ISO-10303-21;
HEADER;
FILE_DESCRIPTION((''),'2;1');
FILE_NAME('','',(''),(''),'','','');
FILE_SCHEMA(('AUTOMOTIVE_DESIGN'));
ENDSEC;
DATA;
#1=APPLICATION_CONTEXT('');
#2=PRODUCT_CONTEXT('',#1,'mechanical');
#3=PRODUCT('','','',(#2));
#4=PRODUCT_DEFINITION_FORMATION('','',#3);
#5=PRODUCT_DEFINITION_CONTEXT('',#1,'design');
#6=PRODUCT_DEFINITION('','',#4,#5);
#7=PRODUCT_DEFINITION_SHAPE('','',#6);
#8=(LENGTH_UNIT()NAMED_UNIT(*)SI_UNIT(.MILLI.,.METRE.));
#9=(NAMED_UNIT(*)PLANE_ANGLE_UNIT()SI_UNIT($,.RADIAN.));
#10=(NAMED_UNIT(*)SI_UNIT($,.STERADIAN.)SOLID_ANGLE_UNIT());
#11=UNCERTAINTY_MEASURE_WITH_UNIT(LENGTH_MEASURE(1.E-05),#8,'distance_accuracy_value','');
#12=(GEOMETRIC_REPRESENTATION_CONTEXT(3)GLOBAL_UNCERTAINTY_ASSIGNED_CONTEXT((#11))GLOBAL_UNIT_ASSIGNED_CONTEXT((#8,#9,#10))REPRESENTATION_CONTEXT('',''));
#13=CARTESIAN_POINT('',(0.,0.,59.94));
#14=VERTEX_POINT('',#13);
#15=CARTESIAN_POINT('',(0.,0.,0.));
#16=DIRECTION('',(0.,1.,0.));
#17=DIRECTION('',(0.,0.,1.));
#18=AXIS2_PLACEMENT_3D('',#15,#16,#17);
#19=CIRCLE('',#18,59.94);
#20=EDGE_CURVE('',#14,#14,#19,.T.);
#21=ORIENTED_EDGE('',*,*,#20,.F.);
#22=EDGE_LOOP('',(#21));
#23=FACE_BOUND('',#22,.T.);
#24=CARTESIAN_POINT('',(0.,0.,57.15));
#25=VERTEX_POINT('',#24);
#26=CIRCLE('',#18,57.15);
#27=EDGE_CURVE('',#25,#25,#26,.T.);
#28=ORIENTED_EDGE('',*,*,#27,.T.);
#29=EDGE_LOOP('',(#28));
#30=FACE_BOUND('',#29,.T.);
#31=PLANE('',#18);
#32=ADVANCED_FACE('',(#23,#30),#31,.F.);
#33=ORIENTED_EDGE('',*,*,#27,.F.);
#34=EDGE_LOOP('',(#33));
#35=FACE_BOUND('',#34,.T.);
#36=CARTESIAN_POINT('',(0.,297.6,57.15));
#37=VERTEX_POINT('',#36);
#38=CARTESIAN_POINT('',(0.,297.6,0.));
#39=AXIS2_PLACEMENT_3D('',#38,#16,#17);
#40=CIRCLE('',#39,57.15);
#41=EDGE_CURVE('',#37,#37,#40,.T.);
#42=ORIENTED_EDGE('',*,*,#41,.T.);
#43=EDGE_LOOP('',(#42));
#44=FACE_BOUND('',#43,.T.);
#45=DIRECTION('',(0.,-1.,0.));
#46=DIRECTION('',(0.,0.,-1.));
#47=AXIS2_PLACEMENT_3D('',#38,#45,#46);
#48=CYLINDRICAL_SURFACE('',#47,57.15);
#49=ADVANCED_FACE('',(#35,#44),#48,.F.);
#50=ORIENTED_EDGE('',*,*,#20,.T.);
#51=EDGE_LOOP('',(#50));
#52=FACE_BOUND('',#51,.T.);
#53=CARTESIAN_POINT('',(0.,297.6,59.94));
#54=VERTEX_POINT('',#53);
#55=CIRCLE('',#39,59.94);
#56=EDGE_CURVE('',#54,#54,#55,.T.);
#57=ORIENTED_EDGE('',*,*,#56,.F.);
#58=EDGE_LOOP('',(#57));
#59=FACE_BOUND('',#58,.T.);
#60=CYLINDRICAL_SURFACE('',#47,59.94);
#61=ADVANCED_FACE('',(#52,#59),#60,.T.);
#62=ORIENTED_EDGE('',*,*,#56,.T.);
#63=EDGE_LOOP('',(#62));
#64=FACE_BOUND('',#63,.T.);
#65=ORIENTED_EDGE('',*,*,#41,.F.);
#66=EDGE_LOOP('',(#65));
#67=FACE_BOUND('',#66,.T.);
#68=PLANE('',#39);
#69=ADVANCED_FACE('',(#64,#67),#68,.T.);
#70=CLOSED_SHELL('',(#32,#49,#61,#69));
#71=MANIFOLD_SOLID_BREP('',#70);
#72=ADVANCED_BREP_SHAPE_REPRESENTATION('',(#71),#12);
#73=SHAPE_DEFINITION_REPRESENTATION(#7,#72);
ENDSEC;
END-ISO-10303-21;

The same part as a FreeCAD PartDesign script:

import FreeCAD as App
import Part
import Sketcher
Q = App.Units.Quantity

doc = App.newDocument("Part")
body = doc.addObject("PartDesign::Body", "Body")

sketch1 = doc.addObject("Sketcher::SketchObject", "Sketch")
body.addObject(sketch1)
sketch1.AttachmentSupport = (doc.XZ_Plane, [""])
sketch1.MapMode = "FlatFace"
sketch1.addGeometry(Part.Circle(App.Vector(0, 0, 0), App.Vector(0, 0, 1), 60), False)
sketch1.addGeometry(Part.Circle(App.Vector(0, 0, 0), App.Vector(0, 0, 1), 57), False)
sketch1.addConstraint(Sketcher.Constraint("Coincident", 0, 3, -1, 1))
sketch1.addConstraint(Sketcher.Constraint("Coincident", 1, 3, -1, 1))
sketch1.addConstraint(Sketcher.Constraint("Diameter", 1, Q("114.3 mm")))
sketch1.addConstraint(Sketcher.Constraint("Diameter", 0, Q("119.88 mm")))
pad1 = doc.addObject("PartDesign::Pad", "Pad")
body.addObject(pad1)
pad1.Profile = sketch1
pad1.Length = 297.6
pad1.Reversed = True

doc.recompute()
